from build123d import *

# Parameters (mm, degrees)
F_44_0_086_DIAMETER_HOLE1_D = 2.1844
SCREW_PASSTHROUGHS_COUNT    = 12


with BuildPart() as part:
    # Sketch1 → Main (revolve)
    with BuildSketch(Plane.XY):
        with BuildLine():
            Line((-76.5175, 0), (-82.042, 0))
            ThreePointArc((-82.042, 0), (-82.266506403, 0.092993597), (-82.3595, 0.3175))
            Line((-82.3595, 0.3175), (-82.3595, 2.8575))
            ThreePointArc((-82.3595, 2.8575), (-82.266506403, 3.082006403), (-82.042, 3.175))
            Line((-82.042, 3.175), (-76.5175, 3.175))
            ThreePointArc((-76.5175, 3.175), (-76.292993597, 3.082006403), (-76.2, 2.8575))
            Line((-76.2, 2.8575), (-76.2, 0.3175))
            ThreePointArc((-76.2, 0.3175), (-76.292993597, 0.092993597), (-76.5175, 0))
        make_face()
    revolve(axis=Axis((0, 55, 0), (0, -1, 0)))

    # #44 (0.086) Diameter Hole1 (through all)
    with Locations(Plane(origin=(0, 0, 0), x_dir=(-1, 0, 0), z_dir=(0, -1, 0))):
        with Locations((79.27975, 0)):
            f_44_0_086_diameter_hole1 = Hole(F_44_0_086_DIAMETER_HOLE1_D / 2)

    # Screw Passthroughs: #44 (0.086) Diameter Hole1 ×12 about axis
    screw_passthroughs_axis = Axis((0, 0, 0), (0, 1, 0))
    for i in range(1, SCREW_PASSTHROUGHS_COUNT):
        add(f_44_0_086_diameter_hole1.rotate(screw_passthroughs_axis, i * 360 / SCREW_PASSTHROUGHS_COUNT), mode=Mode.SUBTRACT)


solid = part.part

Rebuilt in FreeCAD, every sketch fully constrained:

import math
import FreeCAD as App
import Part
import Sketcher
from FreeCAD import Vector
Q = App.Units.Quantity

doc = App.newDocument("Part")
body = doc.addObject("PartDesign::Body", "Body")

# Sketch on XY plane
sketch1 = body.newObject("Sketcher::SketchObject", "Sketch")
sketch1.AttachmentSupport = (doc.getObject("XY_Plane"), [""])
sketch1.MapMode = "FlatFace"
sketch1.addGeometry([
    Part.LineSegment(Vector(-82.04, 0, 0), Vector(-76.52, 0, 0)),  # 0
    Part.ArcOfCircle(Part.Circle(Vector(-76.52, 0.32, 0), Vector(0, 0, 1), 0.32), math.radians(-90), math.radians(0)),  # 1
    Part.LineSegment(Vector(-76.2, 0.32, 0), Vector(-76.2, 2.86, 0)),  # 2
    Part.ArcOfCircle(Part.Circle(Vector(-76.52, 2.86, 0), Vector(0, 0, 1), 0.32), math.radians(0), math.radians(90)),  # 3
    Part.LineSegment(Vector(-76.52, 3.17, 0), Vector(-82.04, 3.17, 0)),  # 4
    Part.ArcOfCircle(Part.Circle(Vector(-82.04, 2.86, 0), Vector(0, 0, 1), 0.32), math.radians(90), math.radians(180)),  # 5
    Part.LineSegment(Vector(-82.36, 2.86, 0), Vector(-82.36, 0.32, 0)),  # 6
    Part.ArcOfCircle(Part.Circle(Vector(-82.04, 0.32, 0), Vector(0, 0, 1), 0.32), math.radians(180), math.radians(270)),  # 7
], False)
sketch1.addConstraint([
    Sketcher.Constraint("Tangent", 0, 2, 1, 1),
    Sketcher.Constraint("Tangent", 1, 2, 2, 1),
    Sketcher.Constraint("Tangent", 2, 2, 3, 1),
    Sketcher.Constraint("Tangent", 3, 2, 4, 1),
    Sketcher.Constraint("Tangent", 4, 2, 5, 1),
    Sketcher.Constraint("Tangent", 5, 2, 6, 1),
    Sketcher.Constraint("Tangent", 6, 2, 7, 1),
    Sketcher.Constraint("Tangent", 7, 2, 0, 1),
    Sketcher.Constraint("Horizontal", 0),
    Sketcher.Constraint("Vertical", 2),
    Sketcher.Constraint("Horizontal", 4),
    Sketcher.Constraint("Vertical", 6),
    Sketcher.Constraint("Equal", 1, 3),
    Sketcher.Constraint("Equal", 3, 5),
    Sketcher.Constraint("Equal", 5, 7),
    Sketcher.Constraint("PointOnObject", 0, 2, -1),
    Sketcher.Constraint("DistanceY", 2, 1, 2, 2, Q("0.1 in")),
    Sketcher.Constraint("DistanceX", 1, 2, -1, 1, Q("3 in")),
    Sketcher.Constraint("Radius", 1, Q("0.0125 in")),
    Sketcher.Constraint("DistanceX", 5, 3, -1, 1, Q("3.23 in")),
])
revolution = body.newObject("PartDesign::Revolution", "Revolution")
revolution.Profile = sketch1
revolution.ReferenceAxis = (sketch1, ["V_Axis"])
revolution.Angle = 360

# Sketch on XZ plane
sketch2 = body.newObject("Sketcher::SketchObject", "Sketch001")
sketch2.AttachmentSupport = (doc.getObject("XZ_Plane"), [""])
sketch2.MapMode = "FlatFace"
sketch2.addGeometry(Part.Circle(Vector(-79.3, 0, 0), Vector(0, 0, 1), 1.1), False)
sketch2.addConstraint([
    Sketcher.Constraint("PointOnObject", 0, 3, -1),
    Sketcher.Constraint("Diameter", 0, Q("0.086 in")),
    Sketcher.Constraint("DistanceX", 0, 3, -1, 1, Q("79.27975 mm")),
])
doc.recompute()
hole = body.newObject("PartDesign::Hole", "Hole")
hole.Profile = sketch2
hole.ThreadType = "None"
hole.Diameter = Q("0.086 in")
hole.DepthType = "ThroughAll"
doc.recompute()

polarpattern = body.newObject("PartDesign::PolarPattern", "PolarPattern")
polarpattern.Originals = [hole]
polarpattern.Axis = (doc.getObject("Y_Axis"), [""])
polarpattern.Angle = 360
polarpattern.Occurrences = 12
body.Tip = polarpattern

doc.recompute()
